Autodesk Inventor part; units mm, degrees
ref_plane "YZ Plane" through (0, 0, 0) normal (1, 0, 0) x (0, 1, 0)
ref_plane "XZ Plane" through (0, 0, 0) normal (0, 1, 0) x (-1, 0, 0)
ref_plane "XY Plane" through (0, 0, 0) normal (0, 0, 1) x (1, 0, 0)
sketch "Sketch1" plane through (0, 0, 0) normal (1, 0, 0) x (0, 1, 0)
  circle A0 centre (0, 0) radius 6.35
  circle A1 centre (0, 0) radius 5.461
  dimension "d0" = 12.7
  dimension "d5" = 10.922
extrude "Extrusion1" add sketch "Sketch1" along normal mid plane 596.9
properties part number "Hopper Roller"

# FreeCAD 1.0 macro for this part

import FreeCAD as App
import Part
import Sketcher

V = App.Vector
Q = App.Units.Quantity

doc = App.newDocument("Part")
body = doc.addObject("PartDesign::Body", "Body")

# Sketch on YZ plane
sketch1 = body.newObject("Sketcher::SketchObject", "Sketch")
sketch1.AttachmentSupport = (doc.getObject("YZ_Plane"), [""])
sketch1.MapMode = "FlatFace"
sketch1.addGeometry(Part.Circle(V(0, 0, 0), V(0, 0, 1), 6), False)
sketch1.addGeometry(Part.Circle(V(0, 0, 0), V(0, 0, 1), 5), False)
sketch1.addConstraint(Sketcher.Constraint("Coincident", 0, 3, -1, 1))
sketch1.addConstraint(Sketcher.Constraint("Coincident", 1, 3, -1, 1))
sketch1.addConstraint(Sketcher.Constraint("Diameter", 0, Q("0.5 in")))
sketch1.addConstraint(Sketcher.Constraint("Diameter", 1, Q("0.43 in")))
pad1 = body.newObject("PartDesign::Pad", "Pad")
pad1.Profile = sketch1
pad1.Length = Q("23.5 in")
pad1.Midplane = True

doc.recompute()
